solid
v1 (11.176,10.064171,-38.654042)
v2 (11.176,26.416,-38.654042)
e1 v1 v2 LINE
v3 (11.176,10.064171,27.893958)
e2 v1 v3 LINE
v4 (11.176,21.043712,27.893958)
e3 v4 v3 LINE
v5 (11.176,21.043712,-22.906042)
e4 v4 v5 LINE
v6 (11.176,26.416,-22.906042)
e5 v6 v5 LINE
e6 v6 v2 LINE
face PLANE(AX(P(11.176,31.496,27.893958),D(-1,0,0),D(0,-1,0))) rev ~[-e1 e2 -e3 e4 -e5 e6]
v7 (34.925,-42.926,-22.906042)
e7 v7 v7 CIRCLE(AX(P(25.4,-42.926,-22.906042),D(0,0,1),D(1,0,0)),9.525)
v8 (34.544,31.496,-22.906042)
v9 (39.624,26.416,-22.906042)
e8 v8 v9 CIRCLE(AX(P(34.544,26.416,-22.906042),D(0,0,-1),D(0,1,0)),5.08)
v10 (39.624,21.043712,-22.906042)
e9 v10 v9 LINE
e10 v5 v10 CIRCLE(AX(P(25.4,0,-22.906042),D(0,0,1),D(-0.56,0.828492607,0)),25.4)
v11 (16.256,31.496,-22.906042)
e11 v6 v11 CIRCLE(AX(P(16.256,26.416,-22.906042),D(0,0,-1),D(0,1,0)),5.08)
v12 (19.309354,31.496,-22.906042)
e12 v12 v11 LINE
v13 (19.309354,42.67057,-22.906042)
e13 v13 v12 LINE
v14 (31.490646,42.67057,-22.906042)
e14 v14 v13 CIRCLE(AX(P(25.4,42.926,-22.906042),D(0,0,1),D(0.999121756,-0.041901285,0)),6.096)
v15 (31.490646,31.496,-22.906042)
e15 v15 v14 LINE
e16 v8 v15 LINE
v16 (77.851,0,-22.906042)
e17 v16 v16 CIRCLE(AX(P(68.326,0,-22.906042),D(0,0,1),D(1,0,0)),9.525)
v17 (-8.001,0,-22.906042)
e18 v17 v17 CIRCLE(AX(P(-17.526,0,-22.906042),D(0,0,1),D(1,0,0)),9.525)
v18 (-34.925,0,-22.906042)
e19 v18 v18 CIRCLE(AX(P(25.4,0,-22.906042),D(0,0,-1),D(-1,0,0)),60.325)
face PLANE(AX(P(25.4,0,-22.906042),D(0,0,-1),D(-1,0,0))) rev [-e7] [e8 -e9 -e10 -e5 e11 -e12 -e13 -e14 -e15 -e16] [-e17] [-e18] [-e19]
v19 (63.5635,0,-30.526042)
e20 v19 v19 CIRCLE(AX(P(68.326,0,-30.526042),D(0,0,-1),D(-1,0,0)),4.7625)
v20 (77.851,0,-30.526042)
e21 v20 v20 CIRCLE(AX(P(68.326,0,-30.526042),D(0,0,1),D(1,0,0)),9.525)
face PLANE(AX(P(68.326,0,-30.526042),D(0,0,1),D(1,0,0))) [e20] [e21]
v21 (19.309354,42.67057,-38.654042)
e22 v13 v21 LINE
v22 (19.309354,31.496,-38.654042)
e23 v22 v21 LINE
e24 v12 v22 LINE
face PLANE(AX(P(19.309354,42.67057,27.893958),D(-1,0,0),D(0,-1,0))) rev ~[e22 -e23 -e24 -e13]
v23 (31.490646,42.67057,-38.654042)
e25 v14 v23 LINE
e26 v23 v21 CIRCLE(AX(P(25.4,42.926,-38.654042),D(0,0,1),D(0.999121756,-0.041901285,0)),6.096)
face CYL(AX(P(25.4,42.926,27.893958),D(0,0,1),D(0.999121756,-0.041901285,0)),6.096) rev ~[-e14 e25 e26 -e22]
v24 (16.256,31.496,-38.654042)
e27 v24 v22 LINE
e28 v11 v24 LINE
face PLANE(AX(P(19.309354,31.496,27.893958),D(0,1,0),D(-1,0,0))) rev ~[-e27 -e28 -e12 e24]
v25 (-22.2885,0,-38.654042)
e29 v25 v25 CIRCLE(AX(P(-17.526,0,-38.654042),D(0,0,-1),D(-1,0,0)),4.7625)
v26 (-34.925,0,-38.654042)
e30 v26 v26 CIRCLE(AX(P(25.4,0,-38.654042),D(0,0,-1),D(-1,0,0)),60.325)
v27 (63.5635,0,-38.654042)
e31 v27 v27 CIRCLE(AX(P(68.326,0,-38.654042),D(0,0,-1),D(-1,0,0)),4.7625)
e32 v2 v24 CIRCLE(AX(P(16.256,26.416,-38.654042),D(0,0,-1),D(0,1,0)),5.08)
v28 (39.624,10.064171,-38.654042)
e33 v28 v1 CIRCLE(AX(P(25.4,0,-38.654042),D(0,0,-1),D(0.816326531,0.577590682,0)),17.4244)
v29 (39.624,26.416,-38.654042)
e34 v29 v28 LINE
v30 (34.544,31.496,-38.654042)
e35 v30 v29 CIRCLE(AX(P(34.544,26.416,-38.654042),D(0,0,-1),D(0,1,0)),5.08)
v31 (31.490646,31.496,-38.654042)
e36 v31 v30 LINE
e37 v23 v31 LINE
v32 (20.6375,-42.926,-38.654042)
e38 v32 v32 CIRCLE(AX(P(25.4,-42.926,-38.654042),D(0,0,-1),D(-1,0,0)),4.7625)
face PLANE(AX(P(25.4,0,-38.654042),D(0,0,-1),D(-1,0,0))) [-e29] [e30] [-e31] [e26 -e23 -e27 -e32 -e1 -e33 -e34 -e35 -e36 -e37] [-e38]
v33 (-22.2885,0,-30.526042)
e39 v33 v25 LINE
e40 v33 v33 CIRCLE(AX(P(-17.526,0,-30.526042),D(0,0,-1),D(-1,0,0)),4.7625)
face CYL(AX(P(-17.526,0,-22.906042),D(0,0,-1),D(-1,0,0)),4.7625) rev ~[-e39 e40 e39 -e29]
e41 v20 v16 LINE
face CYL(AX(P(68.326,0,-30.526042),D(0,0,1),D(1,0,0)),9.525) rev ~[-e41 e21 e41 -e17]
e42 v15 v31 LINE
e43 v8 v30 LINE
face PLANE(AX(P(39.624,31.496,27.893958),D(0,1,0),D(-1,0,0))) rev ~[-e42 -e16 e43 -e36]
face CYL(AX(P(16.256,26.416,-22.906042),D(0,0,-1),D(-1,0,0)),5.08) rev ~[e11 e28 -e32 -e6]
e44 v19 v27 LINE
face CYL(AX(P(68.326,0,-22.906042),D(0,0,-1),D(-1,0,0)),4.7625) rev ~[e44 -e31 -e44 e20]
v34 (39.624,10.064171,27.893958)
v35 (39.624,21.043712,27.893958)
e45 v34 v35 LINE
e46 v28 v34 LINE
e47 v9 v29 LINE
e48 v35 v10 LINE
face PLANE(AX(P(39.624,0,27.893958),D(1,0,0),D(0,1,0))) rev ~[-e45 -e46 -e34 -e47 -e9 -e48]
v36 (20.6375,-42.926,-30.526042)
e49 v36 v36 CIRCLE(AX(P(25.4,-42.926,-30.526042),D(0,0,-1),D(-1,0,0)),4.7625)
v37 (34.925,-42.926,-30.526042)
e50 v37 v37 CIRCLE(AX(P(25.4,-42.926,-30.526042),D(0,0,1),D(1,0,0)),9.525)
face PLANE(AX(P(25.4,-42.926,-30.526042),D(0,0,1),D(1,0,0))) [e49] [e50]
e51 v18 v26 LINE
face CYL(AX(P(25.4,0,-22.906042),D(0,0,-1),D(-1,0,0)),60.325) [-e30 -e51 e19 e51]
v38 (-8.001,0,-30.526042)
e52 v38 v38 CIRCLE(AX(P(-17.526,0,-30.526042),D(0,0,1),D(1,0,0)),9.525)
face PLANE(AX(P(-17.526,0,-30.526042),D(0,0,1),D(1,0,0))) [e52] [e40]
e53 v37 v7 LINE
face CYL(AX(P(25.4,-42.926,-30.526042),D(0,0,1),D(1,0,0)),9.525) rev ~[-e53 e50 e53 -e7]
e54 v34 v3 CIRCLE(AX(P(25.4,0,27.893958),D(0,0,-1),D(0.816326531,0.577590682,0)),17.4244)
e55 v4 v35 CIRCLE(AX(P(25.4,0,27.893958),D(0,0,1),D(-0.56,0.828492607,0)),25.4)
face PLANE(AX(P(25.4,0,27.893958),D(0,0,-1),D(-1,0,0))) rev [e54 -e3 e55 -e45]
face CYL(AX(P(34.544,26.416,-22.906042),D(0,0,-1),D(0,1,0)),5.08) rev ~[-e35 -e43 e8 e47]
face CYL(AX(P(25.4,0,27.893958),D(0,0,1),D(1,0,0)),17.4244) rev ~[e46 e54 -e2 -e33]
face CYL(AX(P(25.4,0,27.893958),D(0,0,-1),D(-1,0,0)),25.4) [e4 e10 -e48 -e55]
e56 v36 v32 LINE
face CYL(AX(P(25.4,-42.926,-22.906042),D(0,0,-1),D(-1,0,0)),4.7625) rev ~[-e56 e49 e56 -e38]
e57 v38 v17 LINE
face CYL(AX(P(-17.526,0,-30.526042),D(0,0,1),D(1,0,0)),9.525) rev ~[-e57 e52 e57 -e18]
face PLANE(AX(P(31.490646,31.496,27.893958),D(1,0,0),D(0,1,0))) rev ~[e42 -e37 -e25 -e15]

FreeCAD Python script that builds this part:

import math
import FreeCAD as App
import Part
import Sketcher
Q = App.Units.Quantity


def edges_at(feature, points):
    """Names of the edges that pass closest to the given points."""
    edges = feature.Shape.Edges
    near = lambda p: min(range(len(edges)), key=lambda i: edges[i].distToShape(Part.Vertex(*p))[0])
    return sorted({f"Edge{near(p) + 1}" for p in points})


def add_polygon(sketch, points):
    """Adds a closed chain of lines whose ends are joined by coincident constraints."""
    first, n = sketch.GeometryCount, len(points)
    for a, b in zip(points, points[1:] + points[:1]):
        sketch.addGeometry(Part.LineSegment(App.Vector(*a, 0), App.Vector(*b, 0)), False)
    for i in range(n):
        sketch.addConstraint(Sketcher.Constraint("Coincident", first + i, 2, first + (i + 1) % n, 1))

doc = App.newDocument("Part")
body = doc.addObject("PartDesign::Body", "Body")

# Sketch on XZ plane
sketch1 = doc.addObject("Sketcher::SketchObject", "Sketch")
body.addObject(sketch1)
sketch1.AttachmentSupport = (doc.XZ_Plane, [""])
sketch1.MapMode = "FlatFace"
add_polygon(sketch1, [(25, -39), (25, 28), (0, 28), (0, -23), (-35, -23), (-35, -39)])  # lines 0-5
sketch1.addGeometry(Part.LineSegment(App.Vector(25, 28, 0), App.Vector(25, -39, 0)), True)  # axis
sketch1.addConstraint([
    Sketcher.Constraint("Vertical", 0),
    Sketcher.Constraint("Horizontal", 1),
    Sketcher.Constraint("Vertical", 2),
    Sketcher.Constraint("Horizontal", 3),
    Sketcher.Constraint("Vertical", 4),
    Sketcher.Constraint("Horizontal", 5),
    Sketcher.Constraint("Vertical", 6),
    Sketcher.Constraint("Coincident", 6, 1, 0, 2),
    Sketcher.Constraint("PointOnObject", 1, 2, -2),
    Sketcher.Constraint("Horizontal", 4, 2, 6, 2),
    Sketcher.Constraint("DistanceX", 1, 2, 1, 1, Q("1 in")),
    Sketcher.Constraint("DistanceY", 2, 2, 2, 1, Q("2 in")),
    Sketcher.Constraint("DistanceY", 0, 1, 0, 2, Q("2.62 in")),
    Sketcher.Constraint("DistanceX", 3, 2, 3, 1, Q("1.375 in")),
    Sketcher.Constraint("DistanceY", -1, 1, 0, 2, 27.893958),
])
revolution = doc.addObject("PartDesign::Revolution", "Revolution")
body.addObject(revolution)
revolution.Profile = sketch1
revolution.ReferenceAxis = (sketch1, ["Axis0"])
revolution.Angle = 360

# Sketch on XY plane
sketch2 = doc.addObject("Sketcher::SketchObject", "Sketch001")
body.addObject(sketch2)
sketch2.AttachmentSupport = (doc.XY_Plane, [""])
sketch2.MapMode = "FlatFace"
sketch2.AttachmentOffset = App.Placement(App.Vector(0, 0, 27.893958), App.Rotation())
sketch2.addGeometry(Part.Circle(App.Vector(25, 0, 0), App.Vector(0, 0, 1), 17), False)
sketch2.addConstraint([
    Sketcher.Constraint("PointOnObject", 0, 3, -1),
    Sketcher.Constraint("Diameter", 0, Q("1.372 in")),
    Sketcher.Constraint("DistanceX", -1, 1, 0, 3, Q("1 in")),
])
pocket1 = doc.addObject("PartDesign::Pocket", "Pocket")
body.addObject(pocket1)
pocket1.Profile = sketch2
pocket1.Length = Q("4 in")

# Sketch on XY plane
sketch3 = doc.addObject("Sketcher::SketchObject", "Sketch002")
body.addObject(sketch3)
sketch3.AttachmentSupport = (doc.XY_Plane, [""])
sketch3.MapMode = "FlatFace"
sketch3.AttachmentOffset = App.Placement(App.Vector(0, 0, -22.906042), App.Rotation())
sketch3.addGeometry([
    Part.Circle(App.Vector(-17.5, 0, 0), App.Vector(0, 0, 1), 4.8),
    Part.Circle(App.Vector(25.4, -42.9, 0), App.Vector(0, 0, 1), 4.8),
    Part.Circle(App.Vector(68.3, 0, 0), App.Vector(0, 0, 1), 4.8),
], False)
sketch3.addConstraint([
    Sketcher.Constraint("Equal", 0, 1),
    Sketcher.Constraint("Equal", 1, 2),
    Sketcher.Constraint("PointOnObject", 0, 3, -1),
    Sketcher.Constraint("PointOnObject", 2, 3, -1),
    Sketcher.Constraint("Diameter", 0, Q("0.375 in")),
    Sketcher.Constraint("DistanceX", -1, 1, 1, 3, Q("1 in")),
    Sketcher.Constraint("DistanceX", 0, 3, -1, 1, Q("0.69 in")),
    Sketcher.Constraint("DistanceY", 1, 3, -1, 1, Q("1.69 in")),
    Sketcher.Constraint("DistanceX", -1, 1, 2, 3, Q("2.69 in")),
])
doc.recompute()
hole = doc.addObject("PartDesign::Hole", "Hole")
body.addObject(hole)
hole.Profile = sketch3
hole.ThreadType = "None"
hole.Diameter = Q("0.375 in")
hole.DepthType = "ThroughAll"
hole.HoleCutType = "Counterbore"
hole.HoleCutDiameter = Q("0.75 in")
hole.HoleCutDepth = Q("0.3 in")

# Sketch on XY plane
sketch4 = doc.addObject("Sketcher::SketchObject", "Sketch003")
body.addObject(sketch4)
sketch4.AttachmentSupport = (doc.XY_Plane, [""])
sketch4.MapMode = "FlatFace"
sketch4.AttachmentOffset = App.Placement(App.Vector(0, 0, 27.893958), App.Rotation())
sketch4.addGeometry([
    Part.LineSegment(App.Vector(11, 0, 0), App.Vector(40, 0, 0)),  # 0
    Part.LineSegment(App.Vector(40, 0, 0), App.Vector(40, 31, 0)),  # 1
    Part.LineSegment(App.Vector(40, 31, 0), App.Vector(31, 31, 0)),  # 2
    Part.LineSegment(App.Vector(31, 31, 0), App.Vector(31, 43, 0)),  # 3
    Part.ArcOfCircle(Part.Circle(App.Vector(25, 43, 0), App.Vector(0, 0, 1), 6), math.radians(-2), math.radians(182)),  # 4
    Part.LineSegment(App.Vector(19, 43, 0), App.Vector(19, 31, 0)),  # 5
    Part.LineSegment(App.Vector(19, 31, 0), App.Vector(11, 31, 0)),  # 6
    Part.LineSegment(App.Vector(11, 31, 0), App.Vector(11, 0, 0)),  # 7
], False)
sketch4.addConstraint([
    Sketcher.Constraint("Coincident", 0, 2, 1, 1),
    Sketcher.Constraint("Coincident", 1, 2, 2, 1),
    Sketcher.Constraint("Coincident", 2, 2, 3, 1),
    Sketcher.Constraint("Coincident", 3, 2, 4, 1),
    Sketcher.Constraint("Coincident", 4, 2, 5, 1),
    Sketcher.Constraint("Coincident", 5, 2, 6, 1),
    Sketcher.Constraint("Coincident", 6, 2, 7, 1),
    Sketcher.Constraint("Coincident", 7, 2, 0, 1),
    Sketcher.Constraint("Horizontal", 0),
    Sketcher.Constraint("Vertical", 1),
    Sketcher.Constraint("Horizontal", 2),
    Sketcher.Constraint("Vertical", 3),
    Sketcher.Constraint("Vertical", 5),
    Sketcher.Constraint("Horizontal", 6),
    Sketcher.Constraint("Vertical", 7),
    Sketcher.Constraint("PointOnObject", 0, 2, -1),
    Sketcher.Constraint("Horizontal", 3, 2, 4, 2),
    Sketcher.Constraint("Horizontal", 2, 2, 5, 2),
    Sketcher.Constraint("Equal", 2, 6),
    Sketcher.Constraint("Radius", 4, Q("0.24 in")),
    Sketcher.Constraint("DistanceX", -1, 1, 4, 3, Q("1 in")),
    Sketcher.Constraint("DistanceX", 0, 1, 0, 2, Q("1.12 in")),
    Sketcher.Constraint("DistanceY", 1, 1, 1, 2, Q("1.24 in")),
    Sketcher.Constraint("DistanceY", -1, 1, 4, 3, Q("1.69 in")),
    Sketcher.Constraint("DistanceY", 3, 1, 3, 2, 11.17457),
])
pocket2 = doc.addObject("PartDesign::Pocket", "Pocket001")
body.addObject(pocket2)
pocket2.Profile = sketch4
pocket2.Length = Q("33 in")
doc.recompute()

fillet = doc.addObject("PartDesign::Fillet", "Fillet")
body.addObject(fillet)
fillet.Base = (pocket2, edges_at(pocket2, [(11.176, 31.496, -30.78), (39.624, 31.496, -30.78)]))
fillet.Radius = Q("0.2 in")

doc.recompute()
